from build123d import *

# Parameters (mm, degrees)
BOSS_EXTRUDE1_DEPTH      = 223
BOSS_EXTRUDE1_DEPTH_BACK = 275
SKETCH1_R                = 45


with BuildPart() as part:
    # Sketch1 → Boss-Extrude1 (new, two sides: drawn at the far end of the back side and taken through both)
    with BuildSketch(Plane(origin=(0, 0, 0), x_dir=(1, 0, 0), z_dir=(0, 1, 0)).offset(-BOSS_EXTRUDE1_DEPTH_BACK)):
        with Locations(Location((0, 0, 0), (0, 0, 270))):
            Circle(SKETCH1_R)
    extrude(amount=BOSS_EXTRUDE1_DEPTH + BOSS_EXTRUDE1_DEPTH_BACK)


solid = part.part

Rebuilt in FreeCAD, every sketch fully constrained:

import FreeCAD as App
import Part
import Sketcher
from FreeCAD import Vector

doc = App.newDocument("Part")
params = doc.addObject("Spreadsheet::Sheet", "Params")
for row, (alias, value) in enumerate([
    ("sketch1_diameter", "90 mm"),
    ("pad1_length", "223 mm"),
    ("pad1_length2", "275 mm"),
], start=1):
    params.set(f"A{row}", alias)
    params.set(f"B{row}", "=" + value)
    params.setAlias(f"B{row}", alias)

body = doc.addObject("PartDesign::Body", "Body")

sketch1 = body.newObject("Sketcher::SketchObject", "Sketch")
sketch1.AttachmentSupport = (doc.getObject("XZ_Plane"), [""])
sketch1.MapMode = "FlatFace"
sketch1.addGeometry(Part.Circle(Vector(0, 0, 0), Vector(0, 0, 1), 45), False)
sketch1.addConstraint([
    Sketcher.Constraint("Coincident", 0, 3, -1, 1),
    Sketcher.Constraint("Diameter", 0, 90.0),
])
sketch1.setExpression("Constraints[1]", "Params.sketch1_diameter")
pad1 = body.newObject("PartDesign::Pad", "Pad")
pad1.Profile = sketch1
pad1.Type = "TwoLengths"
pad1.setExpression("Length", "Params.pad1_length")
pad1.setExpression("Length2", "Params.pad1_length2")
pad1.Reversed = True

doc.recompute()
